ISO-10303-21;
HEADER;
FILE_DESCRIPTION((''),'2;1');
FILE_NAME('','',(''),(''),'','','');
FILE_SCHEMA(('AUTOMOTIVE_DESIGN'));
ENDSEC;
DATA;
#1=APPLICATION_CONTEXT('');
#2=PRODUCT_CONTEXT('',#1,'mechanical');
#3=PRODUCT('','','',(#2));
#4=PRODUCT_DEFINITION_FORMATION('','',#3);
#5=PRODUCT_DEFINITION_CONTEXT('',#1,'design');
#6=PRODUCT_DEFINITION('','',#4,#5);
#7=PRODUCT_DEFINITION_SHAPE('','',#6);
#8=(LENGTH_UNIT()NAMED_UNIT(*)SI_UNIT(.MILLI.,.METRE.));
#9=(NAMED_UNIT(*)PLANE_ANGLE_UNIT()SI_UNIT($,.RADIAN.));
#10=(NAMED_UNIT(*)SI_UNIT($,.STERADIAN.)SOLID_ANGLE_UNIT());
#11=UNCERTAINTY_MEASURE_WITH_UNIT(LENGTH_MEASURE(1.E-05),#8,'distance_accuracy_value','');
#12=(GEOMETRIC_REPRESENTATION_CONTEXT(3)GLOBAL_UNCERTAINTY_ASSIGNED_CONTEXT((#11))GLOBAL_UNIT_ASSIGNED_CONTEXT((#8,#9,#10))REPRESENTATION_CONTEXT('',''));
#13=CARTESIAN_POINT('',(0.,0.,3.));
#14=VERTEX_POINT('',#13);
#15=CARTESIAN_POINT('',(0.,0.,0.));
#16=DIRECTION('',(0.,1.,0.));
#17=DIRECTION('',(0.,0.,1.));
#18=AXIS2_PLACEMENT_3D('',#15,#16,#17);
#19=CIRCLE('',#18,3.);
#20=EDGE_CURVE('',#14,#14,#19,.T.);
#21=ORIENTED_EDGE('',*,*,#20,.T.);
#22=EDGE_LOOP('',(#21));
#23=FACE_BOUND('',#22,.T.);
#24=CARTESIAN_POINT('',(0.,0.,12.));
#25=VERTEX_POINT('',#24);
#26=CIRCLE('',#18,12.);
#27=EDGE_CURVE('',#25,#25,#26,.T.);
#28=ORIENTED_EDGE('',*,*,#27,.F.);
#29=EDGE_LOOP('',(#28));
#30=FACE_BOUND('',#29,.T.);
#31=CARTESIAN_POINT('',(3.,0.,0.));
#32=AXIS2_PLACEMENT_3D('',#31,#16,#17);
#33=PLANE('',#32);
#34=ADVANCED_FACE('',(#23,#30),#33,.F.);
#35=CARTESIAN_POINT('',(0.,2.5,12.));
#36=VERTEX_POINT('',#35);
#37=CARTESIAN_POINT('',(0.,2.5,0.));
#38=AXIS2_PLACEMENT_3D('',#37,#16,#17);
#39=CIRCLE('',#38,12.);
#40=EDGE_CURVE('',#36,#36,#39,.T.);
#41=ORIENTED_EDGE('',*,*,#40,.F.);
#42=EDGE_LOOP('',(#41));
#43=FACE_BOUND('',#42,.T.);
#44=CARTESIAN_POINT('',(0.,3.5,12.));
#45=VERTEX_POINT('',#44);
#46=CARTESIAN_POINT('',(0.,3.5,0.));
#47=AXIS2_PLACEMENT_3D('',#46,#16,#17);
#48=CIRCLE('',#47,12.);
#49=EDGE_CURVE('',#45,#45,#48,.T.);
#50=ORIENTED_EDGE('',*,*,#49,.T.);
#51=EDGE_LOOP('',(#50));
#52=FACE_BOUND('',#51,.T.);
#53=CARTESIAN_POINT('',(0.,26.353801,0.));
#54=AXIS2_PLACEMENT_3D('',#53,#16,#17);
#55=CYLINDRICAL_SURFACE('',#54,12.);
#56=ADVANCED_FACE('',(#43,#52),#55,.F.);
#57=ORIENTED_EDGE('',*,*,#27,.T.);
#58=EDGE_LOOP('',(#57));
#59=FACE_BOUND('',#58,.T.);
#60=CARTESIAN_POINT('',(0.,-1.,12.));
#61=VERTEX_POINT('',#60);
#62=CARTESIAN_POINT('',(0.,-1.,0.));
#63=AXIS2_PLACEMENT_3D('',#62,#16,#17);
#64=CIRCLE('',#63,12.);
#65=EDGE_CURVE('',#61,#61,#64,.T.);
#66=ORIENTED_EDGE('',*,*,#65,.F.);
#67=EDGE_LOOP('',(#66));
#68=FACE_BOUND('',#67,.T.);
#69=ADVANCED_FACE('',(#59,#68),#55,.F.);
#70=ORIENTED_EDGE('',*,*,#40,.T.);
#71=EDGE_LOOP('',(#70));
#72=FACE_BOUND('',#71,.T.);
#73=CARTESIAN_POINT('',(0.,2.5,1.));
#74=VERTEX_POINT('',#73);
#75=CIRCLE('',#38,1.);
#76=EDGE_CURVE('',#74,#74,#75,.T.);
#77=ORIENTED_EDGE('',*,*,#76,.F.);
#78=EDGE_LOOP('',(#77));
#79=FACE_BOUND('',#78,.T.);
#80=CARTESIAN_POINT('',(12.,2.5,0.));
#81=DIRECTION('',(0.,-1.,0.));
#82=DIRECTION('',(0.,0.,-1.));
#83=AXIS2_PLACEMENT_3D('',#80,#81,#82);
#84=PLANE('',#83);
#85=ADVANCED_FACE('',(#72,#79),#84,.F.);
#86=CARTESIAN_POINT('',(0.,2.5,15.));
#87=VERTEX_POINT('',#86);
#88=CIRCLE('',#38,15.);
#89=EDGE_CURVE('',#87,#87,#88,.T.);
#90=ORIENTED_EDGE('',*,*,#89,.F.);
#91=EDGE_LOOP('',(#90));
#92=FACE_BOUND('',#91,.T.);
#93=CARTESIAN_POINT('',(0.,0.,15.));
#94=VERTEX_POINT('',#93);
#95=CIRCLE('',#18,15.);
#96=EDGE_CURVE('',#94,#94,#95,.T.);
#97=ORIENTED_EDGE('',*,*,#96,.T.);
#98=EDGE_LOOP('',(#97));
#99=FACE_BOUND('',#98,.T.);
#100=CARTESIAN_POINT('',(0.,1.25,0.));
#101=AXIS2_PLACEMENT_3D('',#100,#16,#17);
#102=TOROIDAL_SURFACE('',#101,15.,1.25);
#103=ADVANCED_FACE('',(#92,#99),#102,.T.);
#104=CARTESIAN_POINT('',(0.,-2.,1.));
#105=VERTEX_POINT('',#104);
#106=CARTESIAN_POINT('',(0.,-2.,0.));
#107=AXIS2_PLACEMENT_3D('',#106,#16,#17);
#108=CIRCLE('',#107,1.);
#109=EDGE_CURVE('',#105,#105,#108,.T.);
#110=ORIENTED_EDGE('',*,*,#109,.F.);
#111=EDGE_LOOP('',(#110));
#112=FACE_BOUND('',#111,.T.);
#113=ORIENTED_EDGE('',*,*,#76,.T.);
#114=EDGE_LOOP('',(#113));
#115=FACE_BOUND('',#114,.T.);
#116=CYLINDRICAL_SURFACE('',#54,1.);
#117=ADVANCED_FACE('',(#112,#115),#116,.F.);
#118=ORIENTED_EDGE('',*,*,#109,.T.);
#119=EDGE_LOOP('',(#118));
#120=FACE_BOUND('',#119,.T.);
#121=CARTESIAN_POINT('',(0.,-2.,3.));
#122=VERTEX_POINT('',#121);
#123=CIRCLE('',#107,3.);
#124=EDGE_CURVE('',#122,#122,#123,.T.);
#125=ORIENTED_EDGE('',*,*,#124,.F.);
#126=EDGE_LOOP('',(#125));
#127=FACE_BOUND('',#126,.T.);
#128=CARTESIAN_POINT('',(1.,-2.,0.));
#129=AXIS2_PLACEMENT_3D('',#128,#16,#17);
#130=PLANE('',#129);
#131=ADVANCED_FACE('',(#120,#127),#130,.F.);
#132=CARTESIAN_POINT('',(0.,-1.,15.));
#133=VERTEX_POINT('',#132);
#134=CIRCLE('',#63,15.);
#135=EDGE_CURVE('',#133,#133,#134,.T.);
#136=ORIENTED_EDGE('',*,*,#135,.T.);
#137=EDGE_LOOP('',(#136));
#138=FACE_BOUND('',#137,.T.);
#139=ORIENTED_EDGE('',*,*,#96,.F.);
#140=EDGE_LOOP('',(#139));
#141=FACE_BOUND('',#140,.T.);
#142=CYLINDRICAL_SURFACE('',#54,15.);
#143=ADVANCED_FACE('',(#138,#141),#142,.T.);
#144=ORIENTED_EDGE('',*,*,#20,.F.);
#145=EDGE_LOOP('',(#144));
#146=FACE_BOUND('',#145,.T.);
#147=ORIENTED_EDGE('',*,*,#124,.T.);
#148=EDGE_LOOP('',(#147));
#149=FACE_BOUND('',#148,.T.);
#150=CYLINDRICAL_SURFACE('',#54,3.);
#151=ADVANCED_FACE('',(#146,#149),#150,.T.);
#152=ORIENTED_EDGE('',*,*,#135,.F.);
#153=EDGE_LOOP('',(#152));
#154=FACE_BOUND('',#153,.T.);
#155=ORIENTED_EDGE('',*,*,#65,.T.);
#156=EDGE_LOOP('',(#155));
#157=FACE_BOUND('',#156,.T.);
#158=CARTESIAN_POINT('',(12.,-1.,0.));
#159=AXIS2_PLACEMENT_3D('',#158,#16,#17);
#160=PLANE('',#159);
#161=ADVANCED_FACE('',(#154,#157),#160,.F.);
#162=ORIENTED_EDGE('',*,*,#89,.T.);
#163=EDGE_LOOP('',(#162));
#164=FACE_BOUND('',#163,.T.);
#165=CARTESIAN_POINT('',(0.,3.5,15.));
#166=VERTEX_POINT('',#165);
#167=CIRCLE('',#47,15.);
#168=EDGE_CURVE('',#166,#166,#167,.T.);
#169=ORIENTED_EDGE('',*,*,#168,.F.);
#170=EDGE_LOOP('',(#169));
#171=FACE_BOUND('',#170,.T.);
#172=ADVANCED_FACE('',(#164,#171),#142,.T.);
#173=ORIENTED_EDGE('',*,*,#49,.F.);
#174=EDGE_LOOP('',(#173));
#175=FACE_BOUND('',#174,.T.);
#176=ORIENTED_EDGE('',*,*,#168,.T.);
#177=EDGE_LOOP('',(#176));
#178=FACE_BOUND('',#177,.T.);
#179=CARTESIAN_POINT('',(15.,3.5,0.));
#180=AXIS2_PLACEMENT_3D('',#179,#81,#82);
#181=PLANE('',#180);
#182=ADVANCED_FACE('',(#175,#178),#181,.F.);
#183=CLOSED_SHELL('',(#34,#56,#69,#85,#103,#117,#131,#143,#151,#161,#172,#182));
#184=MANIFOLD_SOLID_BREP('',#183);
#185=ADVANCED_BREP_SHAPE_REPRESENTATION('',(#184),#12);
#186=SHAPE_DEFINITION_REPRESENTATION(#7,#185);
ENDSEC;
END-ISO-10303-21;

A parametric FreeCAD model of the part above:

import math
import FreeCAD as App
import Part
import Sketcher
from FreeCAD import Vector

doc = App.newDocument("Part")
body = doc.addObject("PartDesign::Body", "Body")

# Sketch on XY plane
sketch1 = body.newObject("Sketcher::SketchObject", "Sketch")
sketch1.AttachmentSupport = (doc.getObject("XY_Plane"), [""])
sketch1.MapMode = "FlatFace"
sketch1.addGeometry([
    Part.LineSegment(Vector(1, 2.5, 0), Vector(1, -2, 0)),  # 0
    Part.LineSegment(Vector(1, -2, 0), Vector(3, -2, 0)),  # 1
    Part.LineSegment(Vector(3, -2, 0), Vector(3, 0, 0)),  # 2
    Part.LineSegment(Vector(3, 0, 0), Vector(12, 0, 0)),  # 3
    Part.LineSegment(Vector(12, 0, 0), Vector(12, -1, 0)),  # 4
    Part.LineSegment(Vector(12, -1, 0), Vector(15, -1, 0)),  # 5
    Part.LineSegment(Vector(15, -1, 0), Vector(15, 0, 0)),  # 6
    Part.ArcOfCircle(Part.Circle(Vector(15, 1.25, 0), Vector(0, 0, 1), 1.25), math.radians(-90), math.radians(90)),  # 7
    Part.LineSegment(Vector(15, 2.5, 0), Vector(15, 3.5, 0)),  # 8
    Part.LineSegment(Vector(15, 3.5, 0), Vector(12, 3.5, 0)),  # 9
    Part.LineSegment(Vector(12, 3.5, 0), Vector(12, 2.5, 0)),  # 10
    Part.LineSegment(Vector(12, 2.5, 0), Vector(1, 2.5, 0)),  # 11
], False)
sketch1.addConstraint([
    Sketcher.Constraint("Coincident", 0, 2, 1, 1),
    Sketcher.Constraint("Coincident", 1, 2, 2, 1),
    Sketcher.Constraint("Coincident", 2, 2, 3, 1),
    Sketcher.Constraint("Coincident", 3, 2, 4, 1),
    Sketcher.Constraint("Coincident", 4, 2, 5, 1),
    Sketcher.Constraint("Coincident", 5, 2, 6, 1),
    Sketcher.Constraint("Coincident", 6, 2, 7, 1),
    Sketcher.Constraint("Coincident", 7, 2, 8, 1),
    Sketcher.Constraint("Coincident", 8, 2, 9, 1),
    Sketcher.Constraint("Coincident", 9, 2, 10, 1),
    Sketcher.Constraint("Coincident", 10, 2, 11, 1),
    Sketcher.Constraint("Coincident", 11, 2, 0, 1),
    Sketcher.Constraint("Vertical", 0),
    Sketcher.Constraint("Horizontal", 1),
    Sketcher.Constraint("Vertical", 2),
    Sketcher.Constraint("Horizontal", 3),
    Sketcher.Constraint("Vertical", 4),
    Sketcher.Constraint("Horizontal", 5),
    Sketcher.Constraint("Vertical", 6),
    Sketcher.Constraint("Vertical", 8),
    Sketcher.Constraint("Horizontal", 9),
    Sketcher.Constraint("Vertical", 10),
    Sketcher.Constraint("Horizontal", 11),
    Sketcher.Constraint("PointOnObject", 2, 2, -1),
    Sketcher.Constraint("PointOnObject", 6, 2, -1),
    Sketcher.Constraint("Horizontal", 7, 2, 10, 2),
    Sketcher.Constraint("Vertical", 7, 3, 5, 2),
    Sketcher.Constraint("Vertical", 6, 2, 7, 2),
    Sketcher.Constraint("Vertical", 4, 2, 9, 2),
    Sketcher.Constraint("Equal", 1, 2),
    Sketcher.Constraint("Equal", 6, 8),
    Sketcher.Constraint("DistanceX", 1, 1, 1, 2, 2.0),
    Sketcher.Constraint("DistanceX", 3, 1, 3, 2, 9.0),
    Sketcher.Constraint("DistanceX", 5, 1, 5, 2, 3.0),
    Sketcher.Constraint("DistanceY", 4, 2, 4, 1, 1.0),
    Sketcher.Constraint("Radius", 7, 1.25),
    Sketcher.Constraint("DistanceX", -1, 1, 7, 3, 15.0),
])
revolution = body.newObject("PartDesign::Revolution", "Revolution")
revolution.Profile = sketch1
revolution.ReferenceAxis = (sketch1, ["V_Axis"])
revolution.Angle = 360

doc.recompute()
